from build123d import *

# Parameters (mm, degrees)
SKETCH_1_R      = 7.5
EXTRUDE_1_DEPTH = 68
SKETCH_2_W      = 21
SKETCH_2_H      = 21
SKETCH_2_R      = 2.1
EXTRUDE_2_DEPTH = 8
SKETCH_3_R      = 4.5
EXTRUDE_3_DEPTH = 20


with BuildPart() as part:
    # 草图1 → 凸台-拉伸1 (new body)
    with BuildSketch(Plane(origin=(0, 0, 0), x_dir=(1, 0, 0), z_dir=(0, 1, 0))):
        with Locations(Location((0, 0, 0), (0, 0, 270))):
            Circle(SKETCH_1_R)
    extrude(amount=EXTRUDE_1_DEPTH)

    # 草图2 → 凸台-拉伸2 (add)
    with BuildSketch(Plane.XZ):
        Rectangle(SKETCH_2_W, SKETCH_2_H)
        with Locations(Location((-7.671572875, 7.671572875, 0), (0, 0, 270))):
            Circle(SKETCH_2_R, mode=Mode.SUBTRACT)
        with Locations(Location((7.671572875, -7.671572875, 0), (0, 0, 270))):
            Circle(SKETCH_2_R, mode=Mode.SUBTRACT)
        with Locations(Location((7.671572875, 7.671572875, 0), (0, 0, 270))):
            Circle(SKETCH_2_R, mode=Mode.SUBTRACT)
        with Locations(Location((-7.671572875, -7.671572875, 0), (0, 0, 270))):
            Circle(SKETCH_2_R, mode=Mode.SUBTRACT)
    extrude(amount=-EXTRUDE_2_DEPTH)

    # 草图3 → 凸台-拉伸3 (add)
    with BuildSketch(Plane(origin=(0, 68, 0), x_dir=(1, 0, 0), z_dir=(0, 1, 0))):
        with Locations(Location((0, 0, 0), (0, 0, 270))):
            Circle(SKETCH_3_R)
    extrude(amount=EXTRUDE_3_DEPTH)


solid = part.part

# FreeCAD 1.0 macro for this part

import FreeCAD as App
import Part
import Sketcher
from FreeCAD import Vector


def add_polygon(sketch, points):
    """Adds a closed chain of lines whose ends are joined by coincident constraints."""
    first, n = sketch.GeometryCount, len(points)
    for a, b in zip(points, points[1:] + points[:1]):
        sketch.addGeometry(Part.LineSegment(App.Vector(*a, 0), App.Vector(*b, 0)), False)
    for i in range(n):
        sketch.addConstraint(Sketcher.Constraint("Coincident", first + i, 2, first + (i + 1) % n, 1))

doc = App.newDocument("Part")
body = doc.addObject("PartDesign::Body", "Body")

# Sketch on XZ plane
sketch1 = doc.addObject("Sketcher::SketchObject", "Sketch")
body.addObject(sketch1)
sketch1.AttachmentSupport = (doc.XZ_Plane, [""])
sketch1.MapMode = "FlatFace"
sketch1.addGeometry(Part.Circle(Vector(0, 0, 0), Vector(0, 0, 1), 8), False)
sketch1.addConstraint([
    Sketcher.Constraint("Coincident", 0, 3, -1, 1),
    Sketcher.Constraint("Diameter", 0, 15.0),
])
pad1 = doc.addObject("PartDesign::Pad", "Pad")
body.addObject(pad1)
pad1.Profile = sketch1
pad1.Length = 68
pad1.Reversed = True

# Sketch on XZ plane
sketch2 = doc.addObject("Sketcher::SketchObject", "Sketch001")
body.addObject(sketch2)
sketch2.AttachmentSupport = (doc.XZ_Plane, [""])
sketch2.MapMode = "FlatFace"
add_polygon(sketch2, [(-10.5, 10.5), (-10.5, -10.5), (10.5, -10.5), (10.5, 10.5)])  # lines 0-3
sketch2.addGeometry(Part.Circle(Vector(-7.7, -7.7, 0), Vector(0, 0, 1), 2.1), False)  # 4
sketch2.addGeometry(Part.Circle(Vector(7.7, -7.7, 0), Vector(0, 0, 1), 2.1), False)  # 5
sketch2.addGeometry(Part.Circle(Vector(-7.7, 7.7, 0), Vector(0, 0, 1), 2.1), False)  # 6
sketch2.addGeometry(Part.Circle(Vector(7.7, 7.7, 0), Vector(0, 0, 1), 2.1), False)  # 7
sketch2.addConstraint([
    Sketcher.Constraint("Vertical", 0),
    Sketcher.Constraint("Horizontal", 1),
    Sketcher.Constraint("Vertical", 2),
    Sketcher.Constraint("Horizontal", 3),
    Sketcher.Constraint("Equal", 4, 5),
    Sketcher.Constraint("Equal", 5, 6),
    Sketcher.Constraint("Equal", 6, 7),
    Sketcher.Constraint("Symmetric", 5, 3, 6, 3, -1, 1),
    Sketcher.Constraint("Symmetric", 4, 3, 7, 3, -1, 1),
    Sketcher.Constraint("Symmetric", 0, 2, 2, 2, -1, 1),
    Sketcher.Constraint("Symmetric", 4, 3, 5, 3, -2),
    Sketcher.Constraint("Equal", 3, 0),
    Sketcher.Constraint("Diameter", 4, 4.2),
    Sketcher.Constraint("DistanceX", 1, 1, 1, 2, 21.0),
    Sketcher.Constraint("DistanceX", 4, 3, -1, 1, 7.671573),
    Sketcher.Constraint("DistanceY", 4, 3, -1, 1, 7.671573),
])
pad2 = doc.addObject("PartDesign::Pad", "Pad001")
body.addObject(pad2)
pad2.Profile = sketch2
pad2.Length = 8
pad2.Reversed = True

# Sketch on XZ plane
sketch3 = doc.addObject("Sketcher::SketchObject", "Sketch002")
body.addObject(sketch3)
sketch3.AttachmentSupport = (doc.XZ_Plane, [""])
sketch3.MapMode = "FlatFace"
sketch3.AttachmentOffset = App.Placement(Vector(0, 0, -68), App.Rotation())
sketch3.addGeometry(Part.Circle(Vector(0, 0, 0), Vector(0, 0, 1), 4.5), False)
sketch3.addConstraint([
    Sketcher.Constraint("Coincident", 0, 3, -1, 1),
    Sketcher.Constraint("Diameter", 0, 9.0),
])
pad3 = doc.addObject("PartDesign::Pad", "Pad002")
body.addObject(pad3)
pad3.Profile = sketch3
pad3.Length = 20
pad3.Reversed = True

doc.recompute()
